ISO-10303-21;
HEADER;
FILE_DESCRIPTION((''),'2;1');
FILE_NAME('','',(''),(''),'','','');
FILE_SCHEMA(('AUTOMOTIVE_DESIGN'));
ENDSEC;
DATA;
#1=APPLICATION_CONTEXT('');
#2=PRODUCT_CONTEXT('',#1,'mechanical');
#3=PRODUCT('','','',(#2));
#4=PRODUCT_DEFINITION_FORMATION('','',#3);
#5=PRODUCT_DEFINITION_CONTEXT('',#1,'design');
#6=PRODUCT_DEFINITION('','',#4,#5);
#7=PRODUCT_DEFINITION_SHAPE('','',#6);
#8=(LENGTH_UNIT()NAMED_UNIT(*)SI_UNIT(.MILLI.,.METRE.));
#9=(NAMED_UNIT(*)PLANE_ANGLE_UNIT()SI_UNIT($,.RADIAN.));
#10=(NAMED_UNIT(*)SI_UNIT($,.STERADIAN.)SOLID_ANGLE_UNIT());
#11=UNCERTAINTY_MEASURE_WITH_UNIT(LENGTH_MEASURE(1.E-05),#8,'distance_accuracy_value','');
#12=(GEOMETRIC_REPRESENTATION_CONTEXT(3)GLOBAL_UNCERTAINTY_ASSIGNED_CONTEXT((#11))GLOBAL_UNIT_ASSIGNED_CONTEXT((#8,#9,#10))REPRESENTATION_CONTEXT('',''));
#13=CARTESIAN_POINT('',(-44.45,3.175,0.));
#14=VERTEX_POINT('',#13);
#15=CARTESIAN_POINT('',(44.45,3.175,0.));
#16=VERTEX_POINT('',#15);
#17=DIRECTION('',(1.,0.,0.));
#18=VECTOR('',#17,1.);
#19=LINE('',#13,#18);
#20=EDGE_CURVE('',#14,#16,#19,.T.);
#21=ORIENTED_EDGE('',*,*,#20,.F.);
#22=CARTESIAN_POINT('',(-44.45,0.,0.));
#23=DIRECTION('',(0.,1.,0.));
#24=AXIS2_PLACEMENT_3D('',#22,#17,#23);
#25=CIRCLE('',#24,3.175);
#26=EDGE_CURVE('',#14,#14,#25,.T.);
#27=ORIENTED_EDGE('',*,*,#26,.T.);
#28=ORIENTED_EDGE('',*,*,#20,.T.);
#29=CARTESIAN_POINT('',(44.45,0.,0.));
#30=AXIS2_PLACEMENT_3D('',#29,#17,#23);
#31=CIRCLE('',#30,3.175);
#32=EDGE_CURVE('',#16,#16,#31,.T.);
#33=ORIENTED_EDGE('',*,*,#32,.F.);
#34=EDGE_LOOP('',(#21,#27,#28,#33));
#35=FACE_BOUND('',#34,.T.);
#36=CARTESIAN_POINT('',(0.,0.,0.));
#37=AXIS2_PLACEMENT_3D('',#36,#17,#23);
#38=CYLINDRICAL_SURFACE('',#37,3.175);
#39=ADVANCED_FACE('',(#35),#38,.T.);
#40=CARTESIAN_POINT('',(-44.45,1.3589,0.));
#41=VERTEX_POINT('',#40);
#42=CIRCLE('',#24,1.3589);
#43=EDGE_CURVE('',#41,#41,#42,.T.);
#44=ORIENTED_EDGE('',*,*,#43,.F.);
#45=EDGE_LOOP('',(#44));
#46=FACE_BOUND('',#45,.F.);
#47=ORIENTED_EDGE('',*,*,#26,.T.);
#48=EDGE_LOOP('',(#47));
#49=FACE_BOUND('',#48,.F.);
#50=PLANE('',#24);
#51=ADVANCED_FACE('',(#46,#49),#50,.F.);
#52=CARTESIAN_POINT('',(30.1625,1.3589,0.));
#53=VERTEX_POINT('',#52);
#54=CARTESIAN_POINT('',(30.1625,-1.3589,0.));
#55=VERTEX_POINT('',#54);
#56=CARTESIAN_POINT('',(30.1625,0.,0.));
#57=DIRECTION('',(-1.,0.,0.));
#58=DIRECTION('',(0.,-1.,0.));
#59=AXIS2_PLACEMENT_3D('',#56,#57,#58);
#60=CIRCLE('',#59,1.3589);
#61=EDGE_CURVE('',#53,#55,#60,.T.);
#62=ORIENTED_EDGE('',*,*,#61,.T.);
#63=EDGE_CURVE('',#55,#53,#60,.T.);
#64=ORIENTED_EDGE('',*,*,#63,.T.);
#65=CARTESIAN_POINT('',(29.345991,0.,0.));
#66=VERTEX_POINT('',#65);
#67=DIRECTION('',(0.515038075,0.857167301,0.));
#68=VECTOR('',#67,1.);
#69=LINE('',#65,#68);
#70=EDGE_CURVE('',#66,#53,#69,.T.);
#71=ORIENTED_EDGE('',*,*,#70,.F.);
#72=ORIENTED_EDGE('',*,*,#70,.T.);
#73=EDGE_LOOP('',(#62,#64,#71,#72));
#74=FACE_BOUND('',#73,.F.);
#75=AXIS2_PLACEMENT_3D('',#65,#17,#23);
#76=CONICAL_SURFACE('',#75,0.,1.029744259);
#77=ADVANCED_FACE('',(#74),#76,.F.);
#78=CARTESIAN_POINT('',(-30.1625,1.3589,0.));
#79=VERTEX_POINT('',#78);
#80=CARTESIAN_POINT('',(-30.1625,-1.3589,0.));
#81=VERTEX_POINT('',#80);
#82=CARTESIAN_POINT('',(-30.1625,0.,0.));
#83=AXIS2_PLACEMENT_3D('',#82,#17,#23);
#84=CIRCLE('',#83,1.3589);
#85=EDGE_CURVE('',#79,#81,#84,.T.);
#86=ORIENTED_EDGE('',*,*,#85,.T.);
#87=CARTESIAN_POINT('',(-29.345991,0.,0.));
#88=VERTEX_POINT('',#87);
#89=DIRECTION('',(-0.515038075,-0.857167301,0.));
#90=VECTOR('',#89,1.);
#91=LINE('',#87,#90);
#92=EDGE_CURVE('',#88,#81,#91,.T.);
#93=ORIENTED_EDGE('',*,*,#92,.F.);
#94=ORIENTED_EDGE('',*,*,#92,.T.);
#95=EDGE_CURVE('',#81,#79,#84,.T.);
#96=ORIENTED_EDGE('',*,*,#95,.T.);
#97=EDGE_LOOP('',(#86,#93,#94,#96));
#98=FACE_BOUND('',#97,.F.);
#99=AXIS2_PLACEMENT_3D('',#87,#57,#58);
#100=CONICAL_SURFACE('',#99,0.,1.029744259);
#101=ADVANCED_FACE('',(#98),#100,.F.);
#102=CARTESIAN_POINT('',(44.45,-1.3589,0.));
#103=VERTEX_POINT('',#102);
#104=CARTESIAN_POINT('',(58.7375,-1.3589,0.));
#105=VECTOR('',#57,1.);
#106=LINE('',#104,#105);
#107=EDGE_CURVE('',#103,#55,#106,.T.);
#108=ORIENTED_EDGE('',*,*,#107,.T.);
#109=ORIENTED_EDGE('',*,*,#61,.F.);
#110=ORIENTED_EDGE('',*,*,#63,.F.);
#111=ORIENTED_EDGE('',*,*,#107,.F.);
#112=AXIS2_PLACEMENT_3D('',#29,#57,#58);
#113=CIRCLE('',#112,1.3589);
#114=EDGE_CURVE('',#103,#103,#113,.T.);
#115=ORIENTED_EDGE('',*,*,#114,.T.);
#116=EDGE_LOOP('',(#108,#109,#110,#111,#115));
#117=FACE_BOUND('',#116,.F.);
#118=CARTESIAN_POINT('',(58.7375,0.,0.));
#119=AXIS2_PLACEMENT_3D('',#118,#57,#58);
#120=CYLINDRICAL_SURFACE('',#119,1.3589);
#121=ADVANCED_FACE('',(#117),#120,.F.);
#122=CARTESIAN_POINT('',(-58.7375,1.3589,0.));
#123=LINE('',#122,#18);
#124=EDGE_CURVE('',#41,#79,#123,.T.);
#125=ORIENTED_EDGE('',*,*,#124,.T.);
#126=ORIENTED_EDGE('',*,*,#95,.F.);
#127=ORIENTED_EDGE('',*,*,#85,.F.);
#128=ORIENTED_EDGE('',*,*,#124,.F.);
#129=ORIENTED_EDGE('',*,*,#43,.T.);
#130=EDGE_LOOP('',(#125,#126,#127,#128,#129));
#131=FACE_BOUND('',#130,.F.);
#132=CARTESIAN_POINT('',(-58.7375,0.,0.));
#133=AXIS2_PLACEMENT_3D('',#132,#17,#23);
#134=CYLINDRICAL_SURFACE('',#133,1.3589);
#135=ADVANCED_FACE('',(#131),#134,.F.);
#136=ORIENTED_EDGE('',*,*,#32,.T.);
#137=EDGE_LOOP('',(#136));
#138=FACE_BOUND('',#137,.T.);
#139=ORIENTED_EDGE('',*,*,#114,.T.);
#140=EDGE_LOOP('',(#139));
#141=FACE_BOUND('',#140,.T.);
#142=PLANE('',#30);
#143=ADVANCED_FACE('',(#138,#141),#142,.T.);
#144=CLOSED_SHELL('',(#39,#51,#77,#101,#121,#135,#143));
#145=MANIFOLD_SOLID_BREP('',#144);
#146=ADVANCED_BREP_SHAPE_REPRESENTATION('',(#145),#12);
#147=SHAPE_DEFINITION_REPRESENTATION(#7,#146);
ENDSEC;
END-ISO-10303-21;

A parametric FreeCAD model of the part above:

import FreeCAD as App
import Part
import Sketcher
from FreeCAD import Vector
Q = App.Units.Quantity

doc = App.newDocument("Part")
body = doc.addObject("PartDesign::Body", "Body")

# Sketch on YZ plane
sketch1 = doc.addObject("Sketcher::SketchObject", "Sketch")
body.addObject(sketch1)
sketch1.AttachmentSupport = (doc.YZ_Plane, [""])
sketch1.MapMode = "FlatFace"
sketch1.addGeometry(Part.Circle(Vector(0, 0, 0), Vector(0, 0, 1), 3.175), False)
sketch1.addConstraint([
    Sketcher.Constraint("Coincident", 0, 3, -1, 1),
    Sketcher.Constraint("Diameter", 0, Q("0.25 in")),
])
pad1 = doc.addObject("PartDesign::Pad", "Pad")
body.addObject(pad1)
pad1.Profile = sketch1
pad1.Length = Q("3.5 in")
pad1.Midplane = True

# Sketch on YZ plane
sketch2 = doc.addObject("Sketcher::SketchObject", "Sketch001")
body.addObject(sketch2)
sketch2.AttachmentSupport = (doc.YZ_Plane, [""])
sketch2.MapMode = "FlatFace"
sketch2.AttachmentOffset = App.Placement(Vector(0, 0, -1.75 * 25.4), App.Rotation())
sketch2.addGeometry(Part.Circle(Vector(0, 0, 0), Vector(0, 0, 1), 1.3589), False)
sketch2.addConstraint([
    Sketcher.Constraint("Coincident", 0, 3, -1, 1),
    Sketcher.Constraint("Diameter", 0, Q("0.107 in")),
])
doc.recompute()
hole = doc.addObject("PartDesign::Hole", "Hole")
body.addObject(hole)
hole.Profile = sketch2
hole.ThreadType = "None"
hole.Diameter = Q("0.107 in")
hole.DepthType = "Dimension"
hole.Depth = Q("0.5625 in")
hole.DrillPoint = "Angled"
hole.DrillPointAngle = 118
hole.Reversed = True

# Sketch on YZ plane
sketch3 = doc.addObject("Sketcher::SketchObject", "Sketch002")
body.addObject(sketch3)
sketch3.AttachmentSupport = (doc.YZ_Plane, [""])
sketch3.MapMode = "FlatFace"
sketch3.AttachmentOffset = App.Placement(Vector(0, 0, 1.75 * 25.4), App.Rotation())
sketch3.addGeometry(Part.Circle(Vector(0, 0, 0), Vector(0, 0, 1), 1.3589), False)
sketch3.addConstraint([
    Sketcher.Constraint("Coincident", 0, 3, -1, 1),
    Sketcher.Constraint("Diameter", 0, Q("0.107 in")),
])
doc.recompute()
hole2 = doc.addObject("PartDesign::Hole", "Hole001")
body.addObject(hole2)
hole2.Profile = sketch3
hole2.ThreadType = "None"
hole2.Diameter = Q("0.107 in")
hole2.DepthType = "Dimension"
hole2.Depth = Q("0.5625 in")
hole2.DrillPoint = "Angled"
hole2.DrillPointAngle = 118

doc.recompute()
